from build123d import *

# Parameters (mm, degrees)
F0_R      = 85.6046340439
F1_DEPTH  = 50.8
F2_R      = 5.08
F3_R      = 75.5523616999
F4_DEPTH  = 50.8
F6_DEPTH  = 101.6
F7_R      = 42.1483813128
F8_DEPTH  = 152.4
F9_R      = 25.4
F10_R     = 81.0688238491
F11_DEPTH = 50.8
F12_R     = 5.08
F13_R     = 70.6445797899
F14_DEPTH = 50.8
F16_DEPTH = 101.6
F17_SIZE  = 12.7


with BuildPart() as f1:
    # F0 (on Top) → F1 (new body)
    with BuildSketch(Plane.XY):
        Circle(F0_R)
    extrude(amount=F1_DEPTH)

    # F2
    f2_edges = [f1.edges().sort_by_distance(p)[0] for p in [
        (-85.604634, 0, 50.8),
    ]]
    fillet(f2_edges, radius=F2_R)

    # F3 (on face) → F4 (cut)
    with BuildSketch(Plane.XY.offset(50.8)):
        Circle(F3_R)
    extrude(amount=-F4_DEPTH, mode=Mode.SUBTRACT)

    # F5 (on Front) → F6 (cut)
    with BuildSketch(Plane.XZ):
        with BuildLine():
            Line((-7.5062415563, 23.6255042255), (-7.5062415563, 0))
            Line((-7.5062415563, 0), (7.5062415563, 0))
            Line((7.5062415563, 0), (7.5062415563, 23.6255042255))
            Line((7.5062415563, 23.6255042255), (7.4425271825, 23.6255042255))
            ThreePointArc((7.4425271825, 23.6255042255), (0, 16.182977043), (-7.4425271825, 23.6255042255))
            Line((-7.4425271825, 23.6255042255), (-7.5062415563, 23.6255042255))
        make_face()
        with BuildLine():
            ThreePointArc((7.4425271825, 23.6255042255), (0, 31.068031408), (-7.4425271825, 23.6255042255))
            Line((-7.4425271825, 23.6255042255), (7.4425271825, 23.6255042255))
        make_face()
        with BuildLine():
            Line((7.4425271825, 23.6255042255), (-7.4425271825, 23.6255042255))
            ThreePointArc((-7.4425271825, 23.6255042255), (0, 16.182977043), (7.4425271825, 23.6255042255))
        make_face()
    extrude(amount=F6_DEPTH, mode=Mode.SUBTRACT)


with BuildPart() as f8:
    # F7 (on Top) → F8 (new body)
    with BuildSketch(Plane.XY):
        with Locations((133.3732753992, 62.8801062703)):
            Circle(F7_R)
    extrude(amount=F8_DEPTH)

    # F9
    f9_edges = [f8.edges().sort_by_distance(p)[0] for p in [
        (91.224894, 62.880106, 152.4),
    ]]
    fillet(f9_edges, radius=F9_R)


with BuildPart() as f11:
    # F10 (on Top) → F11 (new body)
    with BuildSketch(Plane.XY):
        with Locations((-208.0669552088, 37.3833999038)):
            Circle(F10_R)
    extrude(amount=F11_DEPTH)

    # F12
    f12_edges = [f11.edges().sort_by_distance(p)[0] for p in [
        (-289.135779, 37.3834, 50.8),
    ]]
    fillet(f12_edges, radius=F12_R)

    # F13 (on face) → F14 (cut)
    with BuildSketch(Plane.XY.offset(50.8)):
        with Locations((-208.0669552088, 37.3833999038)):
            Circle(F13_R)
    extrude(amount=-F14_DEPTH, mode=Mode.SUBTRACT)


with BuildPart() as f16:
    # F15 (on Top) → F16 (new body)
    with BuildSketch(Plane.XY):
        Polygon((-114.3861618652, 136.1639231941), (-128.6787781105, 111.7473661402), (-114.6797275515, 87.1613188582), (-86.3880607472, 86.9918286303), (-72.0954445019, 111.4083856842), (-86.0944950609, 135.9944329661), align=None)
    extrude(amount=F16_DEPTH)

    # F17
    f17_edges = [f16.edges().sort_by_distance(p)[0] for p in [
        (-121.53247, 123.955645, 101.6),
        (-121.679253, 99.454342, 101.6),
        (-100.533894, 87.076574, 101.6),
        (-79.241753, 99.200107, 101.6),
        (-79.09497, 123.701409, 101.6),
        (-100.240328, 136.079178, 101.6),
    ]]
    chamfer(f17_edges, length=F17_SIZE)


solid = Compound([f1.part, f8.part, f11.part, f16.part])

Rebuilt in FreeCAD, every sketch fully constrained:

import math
import FreeCAD as App
import Part
import Sketcher

V = App.Vector
Q = App.Units.Quantity


def edges_at(feature, points):
    """Names of the edges that pass closest to the given points."""
    edges = feature.Shape.Edges
    near = lambda p: min(range(len(edges)), key=lambda i: edges[i].distToShape(Part.Vertex(*p))[0])
    return sorted({f"Edge{near(p) + 1}" for p in points})


def add_polygon(sketch, points):
    """Adds a closed chain of lines whose ends are joined by coincident constraints."""
    first, n = sketch.GeometryCount, len(points)
    for a, b in zip(points, points[1:] + points[:1]):
        sketch.addGeometry(Part.LineSegment(App.Vector(*a, 0), App.Vector(*b, 0)), False)
    for i in range(n):
        sketch.addConstraint(Sketcher.Constraint("Coincident", first + i, 2, first + (i + 1) % n, 1))

doc = App.newDocument("Part")
body = doc.addObject("PartDesign::Body", "Body")

# Sketch on XY plane
sketch1 = body.newObject("Sketcher::SketchObject", "Sketch")
sketch1.AttachmentSupport = (doc.getObject("XY_Plane"), [""])
sketch1.MapMode = "FlatFace"
sketch1.addGeometry(Part.Circle(V(0, 0, 0), V(0, 0, 1), 86), False)
sketch1.addConstraint([
    Sketcher.Constraint("Coincident", 0, 3, -1, 1),
    Sketcher.Constraint("Diameter", 0, 171.209268),
])
pad1 = body.newObject("PartDesign::Pad", "Pad")
pad1.Profile = sketch1
pad1.Length = Q("2 in")
doc.recompute()

fillet = body.newObject("PartDesign::Fillet", "Fillet")
fillet.Base = (pad1, edges_at(pad1, [(-85.605, 0, 50.8)]))
fillet.Radius = Q("0.2 in")

# Sketch on XY plane
sketch2 = body.newObject("Sketcher::SketchObject", "Sketch001")
sketch2.AttachmentSupport = (doc.getObject("XY_Plane"), [""])
sketch2.MapMode = "FlatFace"
sketch2.AttachmentOffset = App.Placement(V(0, 0, 2 * 25.4), App.Rotation())
sketch2.addGeometry(Part.Circle(V(0, 0, 0), V(0, 0, 1), 76), False)
sketch2.addConstraint([
    Sketcher.Constraint("Coincident", 0, 3, -1, 1),
    Sketcher.Constraint("Diameter", 0, 151.104723),
])
pocket1 = body.newObject("PartDesign::Pocket", "Pocket")
pocket1.Profile = sketch2
pocket1.Length = Q("2 in")

# Sketch on XZ plane
sketch3 = body.newObject("Sketcher::SketchObject", "Sketch002")
sketch3.AttachmentSupport = (doc.getObject("XZ_Plane"), [""])
sketch3.MapMode = "FlatFace"
sketch3.addGeometry([
    Part.LineSegment(V(-7.51, 23.63, 0), V(-7.51, 0, 0)),  # 0
    Part.LineSegment(V(-7.51, 0, 0), V(7.51, 0, 0)),  # 1
    Part.LineSegment(V(7.51, 0, 0), V(7.51, 23.63, 0)),  # 2
    Part.LineSegment(V(7.51, 23.63, 0), V(7.44, 23.63, 0)),  # 3
    Part.ArcOfCircle(Part.Circle(V(0, 23.63, 0), V(0, 0, 1), 7.44), math.radians(0), math.radians(180)),  # 4
    Part.LineSegment(V(-7.44, 23.63, 0), V(-7.51, 23.63, 0)),  # 5
], False)
sketch3.addConstraint([
    Sketcher.Constraint("Coincident", 0, 2, 1, 1),
    Sketcher.Constraint("Coincident", 1, 2, 2, 1),
    Sketcher.Constraint("Coincident", 2, 2, 3, 1),
    Sketcher.Constraint("Coincident", 3, 2, 4, 1),
    Sketcher.Constraint("Coincident", 4, 2, 5, 1),
    Sketcher.Constraint("Coincident", 5, 2, 0, 1),
    Sketcher.Constraint("Vertical", 0),
    Sketcher.Constraint("Horizontal", 1),
    Sketcher.Constraint("Vertical", 2),
    Sketcher.Constraint("Horizontal", 3),
    Sketcher.Constraint("Horizontal", 5),
    Sketcher.Constraint("Symmetric", 0, 2, 1, 2, -1, 1),
    Sketcher.Constraint("Symmetric", 3, 2, 4, 2, -2),
    Sketcher.Constraint("Horizontal", 4, 3, 2, 2),
    Sketcher.Constraint("Radius", 4, 7.442527),
    Sketcher.Constraint("DistanceX", 1, 1, 1, 2, 15.012483),
    Sketcher.Constraint("DistanceY", 0, 2, 0, 1, 23.625504),
])
pocket2 = body.newObject("PartDesign::Pocket", "Pocket001")
pocket2.Profile = sketch3
pocket2.Length = Q("4 in")
pocket2.Reversed = True
body2 = doc.addObject("PartDesign::Body", "Body001")

# Sketch on XY plane
sketch4 = body2.newObject("Sketcher::SketchObject", "Sketch003")
sketch4.AttachmentSupport = (doc.getObject("XY_Plane001"), [""])
sketch4.MapMode = "FlatFace"
sketch4.addGeometry(Part.Circle(V(133, 63, 0), V(0, 0, 1), 42), False)
sketch4.addConstraint([
    Sketcher.Constraint("Diameter", 0, 84.296763),
    Sketcher.Constraint("DistanceX", -1, 1, 0, 3, 133.373275),
    Sketcher.Constraint("DistanceY", -1, 1, 0, 3, 62.880106),
])
pad2 = body2.newObject("PartDesign::Pad", "Pad001")
pad2.Profile = sketch4
pad2.Length = Q("6 in")
doc.recompute()

fillet2 = body2.newObject("PartDesign::Fillet", "Fillet001")
fillet2.Base = (pad2, edges_at(pad2, [(91.225, 62.88, 152.4)]))
fillet2.Radius = Q("1 in")
body3 = doc.addObject("PartDesign::Body", "Body002")

# Sketch on XY plane
sketch5 = body3.newObject("Sketcher::SketchObject", "Sketch004")
sketch5.AttachmentSupport = (doc.getObject("XY_Plane002"), [""])
sketch5.MapMode = "FlatFace"
sketch5.addGeometry(Part.Circle(V(-208, 37, 0), V(0, 0, 1), 81), False)
sketch5.addConstraint([
    Sketcher.Constraint("Diameter", 0, 162.137648),
    Sketcher.Constraint("DistanceY", -1, 1, 0, 3, 37.3834),
    Sketcher.Constraint("DistanceX", 0, 3, -1, 1, 208.066955),
])
pad3 = body3.newObject("PartDesign::Pad", "Pad002")
pad3.Profile = sketch5
pad3.Length = Q("2 in")
doc.recompute()

fillet3 = body3.newObject("PartDesign::Fillet", "Fillet002")
fillet3.Base = (pad3, edges_at(pad3, [(-289.136, 37.383, 50.8)]))
fillet3.Radius = Q("0.2 in")

# Sketch on XY plane
sketch6 = body3.newObject("Sketcher::SketchObject", "Sketch005")
sketch6.AttachmentSupport = (doc.getObject("XY_Plane002"), [""])
sketch6.MapMode = "FlatFace"
sketch6.AttachmentOffset = App.Placement(V(0, 0, 2 * 25.4), App.Rotation())
sketch6.addGeometry(Part.Circle(V(-208, 37, 0), V(0, 0, 1), 71), False)
sketch6.addConstraint([
    Sketcher.Constraint("Diameter", 0, 141.28916),
    Sketcher.Constraint("DistanceY", -1, 1, 0, 3, 37.3834),
    Sketcher.Constraint("DistanceX", 0, 3, -1, 1, 208.066955),
])
pocket3 = body3.newObject("PartDesign::Pocket", "Pocket002")
pocket3.Profile = sketch6
pocket3.Length = Q("2 in")
body4 = doc.addObject("PartDesign::Body", "Body003")

# Sketch on XY plane
sketch7 = body4.newObject("Sketcher::SketchObject", "Sketch006")
sketch7.AttachmentSupport = (doc.getObject("XY_Plane003"), [""])
sketch7.MapMode = "FlatFace"
add_polygon(sketch7, [(-114, 136), (-129, 112), (-115, 87), (-86, 87), (-72, 111), (-86, 136)])  # lines 0-5
sketch7.addConstraint([
    Sketcher.Constraint("Parallel", 0, 3),
    Sketcher.Constraint("Parallel", 1, 4),
    Sketcher.Constraint("Parallel", 2, 5),
    Sketcher.Constraint("Equal", 0, 1),
    Sketcher.Constraint("Equal", 1, 2),
    Sketcher.Constraint("Equal", 2, 3),
    Sketcher.Constraint("DistanceX", 5, 2, 2, 2, 27.998101),
    Sketcher.Constraint("DistanceX", 0, 2, -1, 1, 128.678778),
    Sketcher.Constraint("DistanceY", -1, 1, 1, 2, 87.161319),
    Sketcher.Constraint("DistanceX", 2, 2, -1, 1, 86.388061),
    Sketcher.Constraint("DistanceY", -1, 1, 2, 2, 86.991829),
    Sketcher.Constraint("DistanceX", 0, 2, 1, 2, 13.999051),
])
pad4 = body4.newObject("PartDesign::Pad", "Pad003")
pad4.Profile = sketch7
pad4.Length = Q("4 in")
doc.recompute()

chamfer = body4.newObject("PartDesign::Chamfer", "Chamfer")
chamfer.Base = (pad4, edges_at(pad4, [
    (-121.532, 123.956, 101.6),
    (-121.679, 99.454, 101.6),
    (-100.534, 87.077, 101.6),
    (-79.242, 99.2, 101.6),
    (-79.095, 123.701, 101.6),
    (-100.24, 136.079, 101.6),
]))
chamfer.Size = Q("0.5 in")

doc.recompute()
